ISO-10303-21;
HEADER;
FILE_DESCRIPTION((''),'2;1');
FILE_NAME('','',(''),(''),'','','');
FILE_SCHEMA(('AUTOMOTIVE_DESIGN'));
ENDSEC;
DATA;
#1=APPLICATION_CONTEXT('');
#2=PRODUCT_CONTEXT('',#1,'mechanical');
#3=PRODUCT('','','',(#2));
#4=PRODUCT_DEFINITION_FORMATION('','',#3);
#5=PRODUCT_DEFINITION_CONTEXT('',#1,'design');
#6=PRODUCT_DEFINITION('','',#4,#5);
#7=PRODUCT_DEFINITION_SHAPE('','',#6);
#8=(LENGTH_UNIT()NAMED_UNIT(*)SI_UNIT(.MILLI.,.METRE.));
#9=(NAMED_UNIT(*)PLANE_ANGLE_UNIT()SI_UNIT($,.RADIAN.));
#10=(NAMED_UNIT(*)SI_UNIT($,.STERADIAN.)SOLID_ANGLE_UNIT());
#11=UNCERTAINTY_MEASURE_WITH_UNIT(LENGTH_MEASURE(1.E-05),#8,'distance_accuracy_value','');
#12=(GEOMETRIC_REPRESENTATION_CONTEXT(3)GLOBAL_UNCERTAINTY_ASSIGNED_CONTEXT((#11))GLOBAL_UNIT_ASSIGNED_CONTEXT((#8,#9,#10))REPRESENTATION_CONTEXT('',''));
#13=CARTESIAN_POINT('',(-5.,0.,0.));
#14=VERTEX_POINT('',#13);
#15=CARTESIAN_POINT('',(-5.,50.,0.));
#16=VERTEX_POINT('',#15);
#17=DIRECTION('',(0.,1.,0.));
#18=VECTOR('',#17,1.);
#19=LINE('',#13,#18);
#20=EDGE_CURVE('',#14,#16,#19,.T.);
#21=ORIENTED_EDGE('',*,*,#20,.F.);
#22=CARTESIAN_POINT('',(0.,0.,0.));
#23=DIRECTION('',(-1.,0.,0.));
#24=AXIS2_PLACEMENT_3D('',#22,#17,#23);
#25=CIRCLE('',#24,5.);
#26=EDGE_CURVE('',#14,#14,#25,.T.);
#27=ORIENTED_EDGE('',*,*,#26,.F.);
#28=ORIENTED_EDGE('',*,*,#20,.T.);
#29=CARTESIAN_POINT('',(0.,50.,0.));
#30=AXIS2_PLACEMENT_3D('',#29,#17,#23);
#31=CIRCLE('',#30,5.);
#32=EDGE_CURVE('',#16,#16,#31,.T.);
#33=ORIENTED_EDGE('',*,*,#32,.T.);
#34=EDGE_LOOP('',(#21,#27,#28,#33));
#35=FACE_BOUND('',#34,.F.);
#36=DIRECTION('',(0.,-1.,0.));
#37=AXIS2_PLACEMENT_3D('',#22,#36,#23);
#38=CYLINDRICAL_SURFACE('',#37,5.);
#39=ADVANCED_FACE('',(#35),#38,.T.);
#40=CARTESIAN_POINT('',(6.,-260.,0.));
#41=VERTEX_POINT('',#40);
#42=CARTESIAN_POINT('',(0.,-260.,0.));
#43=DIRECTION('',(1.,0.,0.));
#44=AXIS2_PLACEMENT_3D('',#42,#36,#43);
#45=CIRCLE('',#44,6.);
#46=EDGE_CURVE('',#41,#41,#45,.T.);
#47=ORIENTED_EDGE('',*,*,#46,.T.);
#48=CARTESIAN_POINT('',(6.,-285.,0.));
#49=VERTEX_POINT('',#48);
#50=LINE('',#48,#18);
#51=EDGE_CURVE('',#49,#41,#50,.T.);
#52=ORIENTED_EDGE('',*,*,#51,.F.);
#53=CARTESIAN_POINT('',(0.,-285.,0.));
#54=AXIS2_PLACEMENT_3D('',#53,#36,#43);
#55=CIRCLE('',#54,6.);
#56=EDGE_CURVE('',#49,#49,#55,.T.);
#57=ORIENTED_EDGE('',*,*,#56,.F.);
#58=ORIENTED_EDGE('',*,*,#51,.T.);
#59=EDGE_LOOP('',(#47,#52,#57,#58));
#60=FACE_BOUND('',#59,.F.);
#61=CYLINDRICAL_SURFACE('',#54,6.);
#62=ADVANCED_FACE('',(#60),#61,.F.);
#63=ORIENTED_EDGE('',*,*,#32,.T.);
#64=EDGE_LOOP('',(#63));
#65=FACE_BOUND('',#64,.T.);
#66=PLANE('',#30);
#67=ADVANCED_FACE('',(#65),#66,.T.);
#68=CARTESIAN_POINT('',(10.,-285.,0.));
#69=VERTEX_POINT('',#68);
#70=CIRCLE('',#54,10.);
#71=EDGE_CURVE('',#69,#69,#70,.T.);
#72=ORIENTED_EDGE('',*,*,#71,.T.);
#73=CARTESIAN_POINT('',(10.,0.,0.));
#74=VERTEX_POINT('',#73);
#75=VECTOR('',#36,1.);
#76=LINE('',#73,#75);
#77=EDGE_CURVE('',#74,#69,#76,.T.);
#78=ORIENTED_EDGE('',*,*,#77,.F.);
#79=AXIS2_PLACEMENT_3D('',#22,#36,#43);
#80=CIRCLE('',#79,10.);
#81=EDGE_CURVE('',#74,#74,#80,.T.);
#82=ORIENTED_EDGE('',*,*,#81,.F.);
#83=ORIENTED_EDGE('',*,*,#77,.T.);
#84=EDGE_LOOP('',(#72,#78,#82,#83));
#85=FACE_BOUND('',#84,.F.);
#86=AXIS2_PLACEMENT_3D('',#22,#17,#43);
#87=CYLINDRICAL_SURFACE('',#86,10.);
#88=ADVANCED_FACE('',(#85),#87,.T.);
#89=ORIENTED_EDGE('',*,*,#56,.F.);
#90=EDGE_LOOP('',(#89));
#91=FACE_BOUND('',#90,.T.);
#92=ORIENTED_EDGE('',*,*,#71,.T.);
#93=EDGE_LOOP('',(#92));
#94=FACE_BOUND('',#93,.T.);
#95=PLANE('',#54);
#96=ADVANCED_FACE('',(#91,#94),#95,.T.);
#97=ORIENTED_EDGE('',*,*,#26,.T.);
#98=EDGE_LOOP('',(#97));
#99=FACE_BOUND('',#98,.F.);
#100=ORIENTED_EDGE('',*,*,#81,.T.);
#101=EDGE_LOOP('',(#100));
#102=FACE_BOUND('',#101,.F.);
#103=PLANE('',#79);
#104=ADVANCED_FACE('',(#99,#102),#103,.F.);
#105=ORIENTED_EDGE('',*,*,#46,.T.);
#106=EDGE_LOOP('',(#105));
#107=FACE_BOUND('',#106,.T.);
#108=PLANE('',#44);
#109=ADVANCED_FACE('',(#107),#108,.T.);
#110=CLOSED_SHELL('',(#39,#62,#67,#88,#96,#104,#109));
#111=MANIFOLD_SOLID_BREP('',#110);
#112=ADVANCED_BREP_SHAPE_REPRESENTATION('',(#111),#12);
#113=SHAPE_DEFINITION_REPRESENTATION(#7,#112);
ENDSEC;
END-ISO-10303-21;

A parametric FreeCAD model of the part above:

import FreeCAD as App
import Part
import Sketcher

doc = App.newDocument("Part")
body = doc.addObject("PartDesign::Body", "Body")

# Sketch on XZ plane
sketch1 = body.newObject("Sketcher::SketchObject", "Sketch")
sketch1.AttachmentSupport = (doc.getObject("XZ_Plane"), [""])
sketch1.MapMode = "FlatFace"
sketch1.addGeometry(Part.Circle(App.Vector(0, 0, 0), App.Vector(0, 0, 1), 10), False)
sketch1.addConstraint(Sketcher.Constraint("Coincident", 0, 3, -1, 1))
sketch1.addConstraint(Sketcher.Constraint("Diameter", 0, 20.0))
pad1 = body.newObject("PartDesign::Pad", "Pad")
pad1.Profile = sketch1
pad1.Length = 285

# Sketch on XZ plane
sketch2 = body.newObject("Sketcher::SketchObject", "Sketch001")
sketch2.AttachmentSupport = (doc.getObject("XZ_Plane"), [""])
sketch2.MapMode = "FlatFace"
sketch2.AttachmentOffset = App.Placement(App.Vector(0, 0, 285), App.Rotation())
sketch2.addGeometry(Part.Circle(App.Vector(0, 0, 0), App.Vector(0, 0, 1), 6), False)
sketch2.addConstraint(Sketcher.Constraint("Coincident", 0, 3, -1, 1))
sketch2.addConstraint(Sketcher.Constraint("Diameter", 0, 12.0))
pocket1 = body.newObject("PartDesign::Pocket", "Pocket")
pocket1.Profile = sketch2
pocket1.Length = 25

# Sketch on XZ plane
sketch3 = body.newObject("Sketcher::SketchObject", "Sketch002")
sketch3.AttachmentSupport = (doc.getObject("XZ_Plane"), [""])
sketch3.MapMode = "FlatFace"
sketch3.addGeometry(Part.Circle(App.Vector(0, 0, 0), App.Vector(0, 0, 1), 5), False)
sketch3.addConstraint(Sketcher.Constraint("Coincident", 0, 3, -1, 1))
sketch3.addConstraint(Sketcher.Constraint("Diameter", 0, 10.0))
pad2 = body.newObject("PartDesign::Pad", "Pad001")
pad2.Profile = sketch3
pad2.Length = 50
pad2.Reversed = True

doc.recompute()
